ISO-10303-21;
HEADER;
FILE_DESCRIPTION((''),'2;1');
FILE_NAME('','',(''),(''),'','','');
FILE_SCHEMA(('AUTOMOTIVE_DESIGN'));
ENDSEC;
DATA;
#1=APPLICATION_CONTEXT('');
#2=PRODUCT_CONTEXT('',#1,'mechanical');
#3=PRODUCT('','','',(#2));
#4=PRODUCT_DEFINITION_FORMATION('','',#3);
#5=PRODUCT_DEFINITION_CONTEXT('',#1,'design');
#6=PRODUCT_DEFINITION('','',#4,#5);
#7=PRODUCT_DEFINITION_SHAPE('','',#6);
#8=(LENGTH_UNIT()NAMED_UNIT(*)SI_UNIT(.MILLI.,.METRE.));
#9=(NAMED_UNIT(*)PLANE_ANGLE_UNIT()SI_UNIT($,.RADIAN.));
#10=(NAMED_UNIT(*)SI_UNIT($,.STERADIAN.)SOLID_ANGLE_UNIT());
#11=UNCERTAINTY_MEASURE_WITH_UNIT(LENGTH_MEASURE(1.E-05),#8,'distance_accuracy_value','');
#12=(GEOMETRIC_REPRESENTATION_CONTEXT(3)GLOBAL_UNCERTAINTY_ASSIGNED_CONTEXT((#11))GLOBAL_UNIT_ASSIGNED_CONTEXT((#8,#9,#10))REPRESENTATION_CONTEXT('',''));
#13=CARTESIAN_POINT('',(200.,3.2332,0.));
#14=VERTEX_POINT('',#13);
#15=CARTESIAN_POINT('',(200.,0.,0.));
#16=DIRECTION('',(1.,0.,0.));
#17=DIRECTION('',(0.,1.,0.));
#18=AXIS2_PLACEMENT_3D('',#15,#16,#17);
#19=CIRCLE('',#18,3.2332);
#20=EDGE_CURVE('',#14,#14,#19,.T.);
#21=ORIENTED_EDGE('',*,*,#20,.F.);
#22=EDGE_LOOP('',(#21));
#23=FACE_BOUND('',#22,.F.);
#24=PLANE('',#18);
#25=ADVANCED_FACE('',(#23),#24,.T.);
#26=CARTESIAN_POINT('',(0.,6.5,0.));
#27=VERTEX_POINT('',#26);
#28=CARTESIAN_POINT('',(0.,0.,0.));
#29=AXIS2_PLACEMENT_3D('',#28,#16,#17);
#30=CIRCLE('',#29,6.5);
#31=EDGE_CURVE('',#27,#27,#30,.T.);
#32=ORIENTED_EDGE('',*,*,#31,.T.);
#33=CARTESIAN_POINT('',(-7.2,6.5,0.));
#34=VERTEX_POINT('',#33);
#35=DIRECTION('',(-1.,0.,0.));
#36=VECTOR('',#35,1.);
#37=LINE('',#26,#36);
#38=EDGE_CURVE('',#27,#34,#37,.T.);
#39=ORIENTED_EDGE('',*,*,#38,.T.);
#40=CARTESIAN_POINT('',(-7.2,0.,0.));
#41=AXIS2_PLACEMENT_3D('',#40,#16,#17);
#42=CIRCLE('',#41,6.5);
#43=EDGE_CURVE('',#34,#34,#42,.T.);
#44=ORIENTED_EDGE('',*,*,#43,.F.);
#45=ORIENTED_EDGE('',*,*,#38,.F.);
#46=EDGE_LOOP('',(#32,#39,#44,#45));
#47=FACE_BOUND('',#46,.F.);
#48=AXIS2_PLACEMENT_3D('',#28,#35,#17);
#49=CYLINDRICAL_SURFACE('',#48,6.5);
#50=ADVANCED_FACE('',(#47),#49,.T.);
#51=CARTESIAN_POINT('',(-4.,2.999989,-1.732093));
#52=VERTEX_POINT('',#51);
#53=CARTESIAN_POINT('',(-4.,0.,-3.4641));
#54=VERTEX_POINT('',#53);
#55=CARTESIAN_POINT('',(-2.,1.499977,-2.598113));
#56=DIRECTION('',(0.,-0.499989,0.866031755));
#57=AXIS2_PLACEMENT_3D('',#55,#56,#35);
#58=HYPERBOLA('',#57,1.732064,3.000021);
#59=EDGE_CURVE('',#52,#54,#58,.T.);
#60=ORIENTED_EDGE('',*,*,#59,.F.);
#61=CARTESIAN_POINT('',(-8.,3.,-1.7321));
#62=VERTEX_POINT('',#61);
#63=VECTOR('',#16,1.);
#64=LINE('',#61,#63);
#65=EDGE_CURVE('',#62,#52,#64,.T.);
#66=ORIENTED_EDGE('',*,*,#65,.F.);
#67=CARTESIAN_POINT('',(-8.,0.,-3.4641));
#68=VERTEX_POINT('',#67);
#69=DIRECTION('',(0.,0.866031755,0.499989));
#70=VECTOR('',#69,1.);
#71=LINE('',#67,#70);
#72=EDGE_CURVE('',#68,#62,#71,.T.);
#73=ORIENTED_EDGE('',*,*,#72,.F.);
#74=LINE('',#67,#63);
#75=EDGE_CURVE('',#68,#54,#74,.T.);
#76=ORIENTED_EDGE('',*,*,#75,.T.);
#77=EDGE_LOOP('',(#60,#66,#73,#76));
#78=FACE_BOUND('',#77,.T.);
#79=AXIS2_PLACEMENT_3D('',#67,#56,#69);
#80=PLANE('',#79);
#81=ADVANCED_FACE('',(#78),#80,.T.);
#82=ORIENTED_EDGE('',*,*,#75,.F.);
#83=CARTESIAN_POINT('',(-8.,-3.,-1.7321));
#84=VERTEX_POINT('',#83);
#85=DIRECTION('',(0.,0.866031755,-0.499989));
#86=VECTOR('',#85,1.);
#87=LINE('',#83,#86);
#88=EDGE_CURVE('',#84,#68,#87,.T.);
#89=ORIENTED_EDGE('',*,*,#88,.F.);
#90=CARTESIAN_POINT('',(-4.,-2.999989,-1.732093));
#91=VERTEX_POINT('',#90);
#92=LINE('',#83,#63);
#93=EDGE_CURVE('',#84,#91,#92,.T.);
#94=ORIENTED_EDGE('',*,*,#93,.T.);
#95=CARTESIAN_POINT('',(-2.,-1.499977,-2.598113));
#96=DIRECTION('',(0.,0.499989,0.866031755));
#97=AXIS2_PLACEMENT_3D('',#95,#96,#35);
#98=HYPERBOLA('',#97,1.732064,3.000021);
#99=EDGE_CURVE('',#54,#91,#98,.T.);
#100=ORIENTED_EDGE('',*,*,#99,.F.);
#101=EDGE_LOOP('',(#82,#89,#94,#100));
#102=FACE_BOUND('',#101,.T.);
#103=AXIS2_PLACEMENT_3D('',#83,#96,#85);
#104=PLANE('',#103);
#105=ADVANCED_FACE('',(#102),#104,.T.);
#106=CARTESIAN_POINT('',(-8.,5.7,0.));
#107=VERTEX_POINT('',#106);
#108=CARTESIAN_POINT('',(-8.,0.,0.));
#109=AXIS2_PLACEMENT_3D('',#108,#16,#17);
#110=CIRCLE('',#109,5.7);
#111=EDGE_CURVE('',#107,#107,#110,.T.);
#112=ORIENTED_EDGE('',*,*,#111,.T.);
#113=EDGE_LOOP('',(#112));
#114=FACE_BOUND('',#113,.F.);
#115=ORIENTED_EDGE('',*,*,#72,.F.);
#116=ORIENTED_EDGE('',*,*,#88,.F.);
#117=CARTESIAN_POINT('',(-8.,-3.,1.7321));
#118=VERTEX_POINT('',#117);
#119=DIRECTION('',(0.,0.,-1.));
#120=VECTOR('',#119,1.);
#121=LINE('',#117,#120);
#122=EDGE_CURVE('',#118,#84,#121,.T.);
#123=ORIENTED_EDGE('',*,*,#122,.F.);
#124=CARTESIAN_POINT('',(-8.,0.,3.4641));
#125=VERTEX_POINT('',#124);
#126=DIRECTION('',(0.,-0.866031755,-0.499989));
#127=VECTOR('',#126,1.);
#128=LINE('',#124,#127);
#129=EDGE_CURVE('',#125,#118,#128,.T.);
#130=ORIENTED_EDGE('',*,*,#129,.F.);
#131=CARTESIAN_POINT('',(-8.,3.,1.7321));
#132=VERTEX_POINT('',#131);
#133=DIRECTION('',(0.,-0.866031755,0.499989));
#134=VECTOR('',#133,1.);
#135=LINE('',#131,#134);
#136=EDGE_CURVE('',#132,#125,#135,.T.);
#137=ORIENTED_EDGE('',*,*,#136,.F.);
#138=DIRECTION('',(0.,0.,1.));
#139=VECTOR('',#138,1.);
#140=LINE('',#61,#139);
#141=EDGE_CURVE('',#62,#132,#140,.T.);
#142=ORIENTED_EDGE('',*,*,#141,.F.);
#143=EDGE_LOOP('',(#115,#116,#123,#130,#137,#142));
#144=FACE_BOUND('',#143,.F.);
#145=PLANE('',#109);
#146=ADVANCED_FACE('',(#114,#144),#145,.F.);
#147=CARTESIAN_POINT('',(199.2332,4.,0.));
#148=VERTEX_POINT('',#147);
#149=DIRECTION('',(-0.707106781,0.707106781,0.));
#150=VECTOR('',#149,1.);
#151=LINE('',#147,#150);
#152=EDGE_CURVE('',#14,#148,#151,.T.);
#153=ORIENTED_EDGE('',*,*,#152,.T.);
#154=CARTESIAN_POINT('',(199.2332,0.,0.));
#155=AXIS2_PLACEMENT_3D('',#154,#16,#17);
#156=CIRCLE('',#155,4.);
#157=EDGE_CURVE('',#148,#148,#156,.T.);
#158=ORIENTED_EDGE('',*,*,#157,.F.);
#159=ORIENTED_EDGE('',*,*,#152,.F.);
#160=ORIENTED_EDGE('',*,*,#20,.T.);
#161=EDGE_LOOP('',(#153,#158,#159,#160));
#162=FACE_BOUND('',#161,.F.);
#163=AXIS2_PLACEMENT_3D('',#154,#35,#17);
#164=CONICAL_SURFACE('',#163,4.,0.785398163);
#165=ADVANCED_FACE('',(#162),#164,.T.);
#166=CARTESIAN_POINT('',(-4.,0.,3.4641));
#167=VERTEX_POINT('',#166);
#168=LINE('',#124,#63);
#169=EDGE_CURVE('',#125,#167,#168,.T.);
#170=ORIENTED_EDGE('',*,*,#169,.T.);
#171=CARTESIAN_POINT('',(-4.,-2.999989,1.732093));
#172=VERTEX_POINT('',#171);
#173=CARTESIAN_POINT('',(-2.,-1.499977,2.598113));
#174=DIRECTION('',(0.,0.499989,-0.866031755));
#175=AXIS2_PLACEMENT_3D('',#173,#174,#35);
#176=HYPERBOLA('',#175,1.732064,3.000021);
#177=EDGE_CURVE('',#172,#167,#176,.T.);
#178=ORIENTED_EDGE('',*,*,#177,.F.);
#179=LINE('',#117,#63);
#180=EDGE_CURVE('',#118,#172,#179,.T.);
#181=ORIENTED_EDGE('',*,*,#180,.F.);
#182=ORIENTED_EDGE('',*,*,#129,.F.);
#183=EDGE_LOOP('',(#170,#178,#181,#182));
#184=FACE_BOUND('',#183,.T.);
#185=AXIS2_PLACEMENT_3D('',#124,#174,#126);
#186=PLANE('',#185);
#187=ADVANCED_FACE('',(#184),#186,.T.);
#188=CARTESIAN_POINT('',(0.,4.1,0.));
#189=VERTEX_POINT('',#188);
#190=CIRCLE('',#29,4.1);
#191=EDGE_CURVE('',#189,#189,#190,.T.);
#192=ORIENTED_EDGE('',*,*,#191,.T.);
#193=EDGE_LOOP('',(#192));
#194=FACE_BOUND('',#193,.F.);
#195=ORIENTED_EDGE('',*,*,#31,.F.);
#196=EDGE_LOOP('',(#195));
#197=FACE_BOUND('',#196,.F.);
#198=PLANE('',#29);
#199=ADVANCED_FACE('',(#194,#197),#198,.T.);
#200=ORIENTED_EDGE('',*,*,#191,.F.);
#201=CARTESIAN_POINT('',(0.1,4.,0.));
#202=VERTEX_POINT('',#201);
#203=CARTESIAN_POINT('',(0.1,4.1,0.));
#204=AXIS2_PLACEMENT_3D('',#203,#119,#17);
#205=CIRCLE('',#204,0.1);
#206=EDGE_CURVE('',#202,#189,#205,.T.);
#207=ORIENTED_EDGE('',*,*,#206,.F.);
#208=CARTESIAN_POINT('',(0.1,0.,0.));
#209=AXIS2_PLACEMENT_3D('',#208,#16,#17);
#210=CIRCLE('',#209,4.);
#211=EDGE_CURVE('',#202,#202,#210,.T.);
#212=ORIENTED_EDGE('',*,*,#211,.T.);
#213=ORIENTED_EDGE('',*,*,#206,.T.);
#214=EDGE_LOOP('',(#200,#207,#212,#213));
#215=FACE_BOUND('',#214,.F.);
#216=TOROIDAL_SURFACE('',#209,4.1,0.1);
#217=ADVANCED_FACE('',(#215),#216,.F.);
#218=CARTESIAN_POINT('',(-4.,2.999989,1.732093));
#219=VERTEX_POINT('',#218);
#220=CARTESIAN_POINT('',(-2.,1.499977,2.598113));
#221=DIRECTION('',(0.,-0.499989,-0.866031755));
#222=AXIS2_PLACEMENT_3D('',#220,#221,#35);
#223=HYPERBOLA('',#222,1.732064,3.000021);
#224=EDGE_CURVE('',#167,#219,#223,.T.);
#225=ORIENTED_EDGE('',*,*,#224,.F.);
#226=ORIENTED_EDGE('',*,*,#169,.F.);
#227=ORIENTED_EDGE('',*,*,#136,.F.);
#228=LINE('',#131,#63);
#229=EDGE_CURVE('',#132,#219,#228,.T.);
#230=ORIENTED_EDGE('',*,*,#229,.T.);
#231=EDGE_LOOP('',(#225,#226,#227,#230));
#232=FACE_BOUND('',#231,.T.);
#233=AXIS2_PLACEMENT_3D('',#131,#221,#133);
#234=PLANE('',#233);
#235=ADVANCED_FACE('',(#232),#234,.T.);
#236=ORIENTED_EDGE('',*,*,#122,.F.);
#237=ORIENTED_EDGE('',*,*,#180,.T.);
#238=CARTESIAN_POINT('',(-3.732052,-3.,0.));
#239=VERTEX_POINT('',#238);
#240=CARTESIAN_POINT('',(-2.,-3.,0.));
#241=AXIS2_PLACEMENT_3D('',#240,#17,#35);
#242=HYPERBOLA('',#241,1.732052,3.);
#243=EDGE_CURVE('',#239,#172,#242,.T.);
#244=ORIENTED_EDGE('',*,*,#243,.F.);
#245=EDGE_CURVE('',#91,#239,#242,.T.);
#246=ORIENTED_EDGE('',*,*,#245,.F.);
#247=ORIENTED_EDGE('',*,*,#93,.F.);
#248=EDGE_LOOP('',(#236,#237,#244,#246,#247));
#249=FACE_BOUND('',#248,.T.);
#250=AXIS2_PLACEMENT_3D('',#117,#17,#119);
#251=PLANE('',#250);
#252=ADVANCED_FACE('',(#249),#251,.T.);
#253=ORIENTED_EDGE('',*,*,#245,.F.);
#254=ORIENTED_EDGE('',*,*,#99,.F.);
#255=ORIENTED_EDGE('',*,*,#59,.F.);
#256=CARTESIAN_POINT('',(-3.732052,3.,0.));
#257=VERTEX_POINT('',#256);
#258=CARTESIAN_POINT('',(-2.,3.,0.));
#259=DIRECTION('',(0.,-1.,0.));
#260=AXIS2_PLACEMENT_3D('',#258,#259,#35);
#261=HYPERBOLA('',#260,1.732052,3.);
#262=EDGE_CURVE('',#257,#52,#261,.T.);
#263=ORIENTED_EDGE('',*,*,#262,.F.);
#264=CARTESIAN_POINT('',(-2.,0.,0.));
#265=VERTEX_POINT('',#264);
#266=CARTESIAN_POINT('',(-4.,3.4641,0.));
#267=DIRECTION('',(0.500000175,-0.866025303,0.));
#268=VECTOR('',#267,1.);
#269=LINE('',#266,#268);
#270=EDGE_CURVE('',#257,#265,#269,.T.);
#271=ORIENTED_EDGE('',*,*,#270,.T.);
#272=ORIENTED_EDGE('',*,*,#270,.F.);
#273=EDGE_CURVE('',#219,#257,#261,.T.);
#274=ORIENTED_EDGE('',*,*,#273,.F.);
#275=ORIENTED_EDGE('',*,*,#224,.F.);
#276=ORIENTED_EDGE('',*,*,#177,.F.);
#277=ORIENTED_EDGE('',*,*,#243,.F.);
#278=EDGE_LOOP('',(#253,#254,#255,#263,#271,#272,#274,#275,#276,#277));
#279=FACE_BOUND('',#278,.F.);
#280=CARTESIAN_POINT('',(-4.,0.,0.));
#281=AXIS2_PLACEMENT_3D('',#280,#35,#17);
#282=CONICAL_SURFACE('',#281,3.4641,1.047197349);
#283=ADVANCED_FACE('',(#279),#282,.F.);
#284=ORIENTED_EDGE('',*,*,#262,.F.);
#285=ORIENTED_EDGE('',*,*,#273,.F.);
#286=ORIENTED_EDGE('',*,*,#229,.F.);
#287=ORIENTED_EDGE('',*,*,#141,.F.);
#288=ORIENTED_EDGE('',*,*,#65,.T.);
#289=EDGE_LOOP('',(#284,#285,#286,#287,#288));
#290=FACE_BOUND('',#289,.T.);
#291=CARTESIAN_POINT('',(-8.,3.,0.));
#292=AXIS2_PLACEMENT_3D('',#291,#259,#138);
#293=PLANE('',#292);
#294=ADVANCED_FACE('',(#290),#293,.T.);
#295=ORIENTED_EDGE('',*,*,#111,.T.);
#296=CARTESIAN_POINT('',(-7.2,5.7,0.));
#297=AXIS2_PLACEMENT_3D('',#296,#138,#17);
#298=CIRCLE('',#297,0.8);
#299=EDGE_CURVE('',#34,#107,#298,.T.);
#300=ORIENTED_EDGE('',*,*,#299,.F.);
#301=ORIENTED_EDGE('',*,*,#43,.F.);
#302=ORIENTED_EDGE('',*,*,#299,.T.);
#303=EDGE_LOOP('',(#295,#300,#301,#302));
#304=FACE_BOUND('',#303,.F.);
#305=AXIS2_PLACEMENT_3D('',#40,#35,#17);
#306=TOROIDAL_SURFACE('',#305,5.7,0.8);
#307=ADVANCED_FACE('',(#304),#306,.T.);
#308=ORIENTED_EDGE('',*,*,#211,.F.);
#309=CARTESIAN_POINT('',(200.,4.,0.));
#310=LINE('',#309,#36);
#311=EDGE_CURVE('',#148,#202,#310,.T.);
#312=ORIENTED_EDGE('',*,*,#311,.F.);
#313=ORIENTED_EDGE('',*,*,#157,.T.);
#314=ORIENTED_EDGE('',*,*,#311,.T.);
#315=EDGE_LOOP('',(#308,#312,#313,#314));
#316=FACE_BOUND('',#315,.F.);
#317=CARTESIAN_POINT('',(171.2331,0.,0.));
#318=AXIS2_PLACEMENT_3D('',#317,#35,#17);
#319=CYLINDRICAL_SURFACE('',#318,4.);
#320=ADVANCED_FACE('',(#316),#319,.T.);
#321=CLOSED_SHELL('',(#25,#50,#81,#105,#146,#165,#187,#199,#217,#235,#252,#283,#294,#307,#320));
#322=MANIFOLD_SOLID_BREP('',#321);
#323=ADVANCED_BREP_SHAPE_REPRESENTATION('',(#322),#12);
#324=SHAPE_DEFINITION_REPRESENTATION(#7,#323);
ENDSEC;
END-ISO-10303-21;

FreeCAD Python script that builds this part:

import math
import FreeCAD as App
import Part
import Sketcher
from FreeCAD import Vector
Q = App.Units.Quantity


def edges_at(feature, points):
    """Names of the edges that pass closest to the given points."""
    edges = feature.Shape.Edges
    near = lambda p: min(range(len(edges)), key=lambda i: edges[i].distToShape(Part.Vertex(*p))[0])
    return sorted({f"Edge{near(p) + 1}" for p in points})


def add_polygon(sketch, points):
    """Adds a closed chain of lines whose ends are joined by coincident constraints."""
    first, n = sketch.GeometryCount, len(points)
    for a, b in zip(points, points[1:] + points[:1]):
        sketch.addGeometry(Part.LineSegment(App.Vector(*a, 0), App.Vector(*b, 0)), False)
    for i in range(n):
        sketch.addConstraint(Sketcher.Constraint("Coincident", first + i, 2, first + (i + 1) % n, 1))

doc = App.newDocument("Part")
body = doc.addObject("PartDesign::Body", "Body")

sketch1 = doc.addObject("Sketcher::SketchObject", "Sketch")
body.addObject(sketch1)
sketch1.AttachmentSupport = (doc.XY_Plane, [""])
sketch1.MapMode = "FlatFace"
add_polygon(sketch1, [(200, 0), (200, 4), (0, 4), (0, 6.5), (-8, 6.5), (-8, 3.5), (-4, 3.5), (-2, 0)])
sketch1.addConstraint([
    Sketcher.Constraint("Vertical", 0),
    Sketcher.Constraint("Horizontal", 1),
    Sketcher.Constraint("Vertical", 2),
    Sketcher.Constraint("Horizontal", 3),
    Sketcher.Constraint("Vertical", 4),
    Sketcher.Constraint("Horizontal", 5),
    Sketcher.Constraint("Horizontal", 7),
    Sketcher.Constraint("PointOnObject", 1, 2, -2),
    Sketcher.Constraint("PointOnObject", 6, 2, -1),
    Sketcher.Constraint("Equal", 5, 0),
    Sketcher.Constraint("DistanceX", 1, 2, 1, 1, 200.0),
    Sketcher.Constraint("DistanceX", 3, 2, 3, 1, 8.0),
    Sketcher.Constraint("DistanceX", 5, 1, 5, 2, 4.0),
    Sketcher.Constraint("Angle", 6, Q("-60 deg")),
    Sketcher.Constraint("Distance", 6, 4.0),
    Sketcher.Constraint("DistanceY", 2, 1, 2, 2, 2.5),
])
revolution = doc.addObject("PartDesign::Revolution", "Revolution")
body.addObject(revolution)
revolution.Profile = sketch1
revolution.ReferenceAxis = (sketch1, ["H_Axis"])
revolution.Angle = 360

sketch2 = doc.addObject("Sketcher::SketchObject", "Sketch001")
body.addObject(sketch2)
sketch2.AttachmentSupport = (doc.YZ_Plane, [""])
sketch2.MapMode = "FlatFace"
sketch2.AttachmentOffset = App.Placement(Vector(0, 0, -8), App.Rotation())
sketch2.addGeometry([
    Part.LineSegment(Vector(3, 1.7, 0), Vector(0, 3.5, 0)),
    Part.ArcOfCircle(Part.Circle(Vector(0, 0, 0), Vector(0, 0, 1), 3.5), math.radians(30), math.radians(90)),
    Part.ArcOfCircle(Part.Circle(Vector(0, 0, 0), Vector(0, 0, 1), 3.5), math.radians(90), math.radians(150)),
    Part.LineSegment(Vector(0, 3.5, 0), Vector(-3, 1.7, 0)),
    Part.ArcOfCircle(Part.Circle(Vector(0, 0, 0), Vector(0, 0, 1), 3.5), math.radians(-30), math.radians(30)),
    Part.LineSegment(Vector(3, 1.7, 0), Vector(3, -1.7, 0)),
    Part.LineSegment(Vector(-3, 1.7, 0), Vector(-3, -1.7, 0)),
    Part.ArcOfCircle(Part.Circle(Vector(0, 0, 0), Vector(0, 0, 1), 3.5), math.radians(150), math.radians(210)),
    Part.LineSegment(Vector(-3, -1.7, 0), Vector(0, -3.5, 0)),
    Part.ArcOfCircle(Part.Circle(Vector(0, 0, 0), Vector(0, 0, 1), 3.5), math.radians(-150), math.radians(-90)),
    Part.ArcOfCircle(Part.Circle(Vector(0, 0, 0), Vector(0, 0, 1), 3.5), math.radians(-90), math.radians(-30)),
    Part.LineSegment(Vector(0, -3.5, 0), Vector(3, -1.7, 0)),
], False)
sketch2.addConstraint([
    Sketcher.Constraint("Coincident", 0, 1, 1, 1),
    Sketcher.Constraint("Coincident", 1, 2, 0, 2),
    Sketcher.Constraint("Coincident", 2, 1, 3, 1),
    Sketcher.Constraint("Coincident", 3, 2, 2, 2),
    Sketcher.Constraint("Coincident", 4, 1, 5, 2),
    Sketcher.Constraint("Coincident", 5, 1, 4, 2),
    Sketcher.Constraint("Coincident", 6, 1, 7, 1),
    Sketcher.Constraint("Coincident", 7, 2, 6, 2),
    Sketcher.Constraint("Coincident", 8, 1, 9, 1),
    Sketcher.Constraint("Coincident", 9, 2, 8, 2),
    Sketcher.Constraint("Coincident", 10, 1, 11, 1),
    Sketcher.Constraint("Coincident", 11, 2, 10, 2),
    Sketcher.Constraint("Vertical", 5),
    Sketcher.Constraint("Vertical", 6),
    Sketcher.Constraint("Coincident", 1, 3, -1, 1),
    Sketcher.Constraint("Coincident", 2, 3, -1, 1),
    Sketcher.Constraint("Coincident", 4, 3, -1, 1),
    Sketcher.Constraint("Coincident", 7, 3, -1, 1),
    Sketcher.Constraint("Coincident", 9, 3, -1, 1),
    Sketcher.Constraint("Coincident", 10, 3, -1, 1),
    Sketcher.Constraint("Coincident", 2, 1, 1, 2),
    Sketcher.Constraint("Coincident", 5, 1, 0, 1),
    Sketcher.Constraint("Coincident", 6, 1, 3, 2),
    Sketcher.Constraint("Coincident", 8, 1, 7, 2),
    Sketcher.Constraint("Coincident", 10, 1, 9, 2),
    Sketcher.Constraint("PointOnObject", 1, 2, -2),
    Sketcher.Constraint("PointOnObject", 9, 2, -2),
    Sketcher.Constraint("Parallel", 0, 8),
    Sketcher.Constraint("Parallel", 3, 11),
    Sketcher.Constraint("Angle", 0, Q("150.0007 deg")),
    Sketcher.Constraint("DistanceX", -1, 1, 0, 1, 3.0),
])
pad1 = doc.addObject("PartDesign::Pad", "Pad")
body.addObject(pad1)
pad1.Profile = sketch2
pad1.Length = 4.2679
doc.recompute()

fillet = doc.addObject("PartDesign::Fillet", "Fillet")
body.addObject(fillet)
fillet.Base = (pad1, edges_at(pad1, [(-8, -6.5, 0)]))
fillet.Radius = 0.8
doc.recompute()

chamfer = doc.addObject("PartDesign::Chamfer", "Chamfer")
body.addObject(chamfer)
chamfer.Base = (fillet, edges_at(fillet, [(200, -4, 0)]))
chamfer.ChamferType = "Two distances"
chamfer.Size = 0.7668
chamfer.Size2 = 0.7668
doc.recompute()

fillet2 = doc.addObject("PartDesign::Fillet", "Fillet001")
body.addObject(fillet2)
fillet2.Base = (chamfer, edges_at(chamfer, [(0, -4, 0)]))
fillet2.Radius = 0.1

doc.recompute()
